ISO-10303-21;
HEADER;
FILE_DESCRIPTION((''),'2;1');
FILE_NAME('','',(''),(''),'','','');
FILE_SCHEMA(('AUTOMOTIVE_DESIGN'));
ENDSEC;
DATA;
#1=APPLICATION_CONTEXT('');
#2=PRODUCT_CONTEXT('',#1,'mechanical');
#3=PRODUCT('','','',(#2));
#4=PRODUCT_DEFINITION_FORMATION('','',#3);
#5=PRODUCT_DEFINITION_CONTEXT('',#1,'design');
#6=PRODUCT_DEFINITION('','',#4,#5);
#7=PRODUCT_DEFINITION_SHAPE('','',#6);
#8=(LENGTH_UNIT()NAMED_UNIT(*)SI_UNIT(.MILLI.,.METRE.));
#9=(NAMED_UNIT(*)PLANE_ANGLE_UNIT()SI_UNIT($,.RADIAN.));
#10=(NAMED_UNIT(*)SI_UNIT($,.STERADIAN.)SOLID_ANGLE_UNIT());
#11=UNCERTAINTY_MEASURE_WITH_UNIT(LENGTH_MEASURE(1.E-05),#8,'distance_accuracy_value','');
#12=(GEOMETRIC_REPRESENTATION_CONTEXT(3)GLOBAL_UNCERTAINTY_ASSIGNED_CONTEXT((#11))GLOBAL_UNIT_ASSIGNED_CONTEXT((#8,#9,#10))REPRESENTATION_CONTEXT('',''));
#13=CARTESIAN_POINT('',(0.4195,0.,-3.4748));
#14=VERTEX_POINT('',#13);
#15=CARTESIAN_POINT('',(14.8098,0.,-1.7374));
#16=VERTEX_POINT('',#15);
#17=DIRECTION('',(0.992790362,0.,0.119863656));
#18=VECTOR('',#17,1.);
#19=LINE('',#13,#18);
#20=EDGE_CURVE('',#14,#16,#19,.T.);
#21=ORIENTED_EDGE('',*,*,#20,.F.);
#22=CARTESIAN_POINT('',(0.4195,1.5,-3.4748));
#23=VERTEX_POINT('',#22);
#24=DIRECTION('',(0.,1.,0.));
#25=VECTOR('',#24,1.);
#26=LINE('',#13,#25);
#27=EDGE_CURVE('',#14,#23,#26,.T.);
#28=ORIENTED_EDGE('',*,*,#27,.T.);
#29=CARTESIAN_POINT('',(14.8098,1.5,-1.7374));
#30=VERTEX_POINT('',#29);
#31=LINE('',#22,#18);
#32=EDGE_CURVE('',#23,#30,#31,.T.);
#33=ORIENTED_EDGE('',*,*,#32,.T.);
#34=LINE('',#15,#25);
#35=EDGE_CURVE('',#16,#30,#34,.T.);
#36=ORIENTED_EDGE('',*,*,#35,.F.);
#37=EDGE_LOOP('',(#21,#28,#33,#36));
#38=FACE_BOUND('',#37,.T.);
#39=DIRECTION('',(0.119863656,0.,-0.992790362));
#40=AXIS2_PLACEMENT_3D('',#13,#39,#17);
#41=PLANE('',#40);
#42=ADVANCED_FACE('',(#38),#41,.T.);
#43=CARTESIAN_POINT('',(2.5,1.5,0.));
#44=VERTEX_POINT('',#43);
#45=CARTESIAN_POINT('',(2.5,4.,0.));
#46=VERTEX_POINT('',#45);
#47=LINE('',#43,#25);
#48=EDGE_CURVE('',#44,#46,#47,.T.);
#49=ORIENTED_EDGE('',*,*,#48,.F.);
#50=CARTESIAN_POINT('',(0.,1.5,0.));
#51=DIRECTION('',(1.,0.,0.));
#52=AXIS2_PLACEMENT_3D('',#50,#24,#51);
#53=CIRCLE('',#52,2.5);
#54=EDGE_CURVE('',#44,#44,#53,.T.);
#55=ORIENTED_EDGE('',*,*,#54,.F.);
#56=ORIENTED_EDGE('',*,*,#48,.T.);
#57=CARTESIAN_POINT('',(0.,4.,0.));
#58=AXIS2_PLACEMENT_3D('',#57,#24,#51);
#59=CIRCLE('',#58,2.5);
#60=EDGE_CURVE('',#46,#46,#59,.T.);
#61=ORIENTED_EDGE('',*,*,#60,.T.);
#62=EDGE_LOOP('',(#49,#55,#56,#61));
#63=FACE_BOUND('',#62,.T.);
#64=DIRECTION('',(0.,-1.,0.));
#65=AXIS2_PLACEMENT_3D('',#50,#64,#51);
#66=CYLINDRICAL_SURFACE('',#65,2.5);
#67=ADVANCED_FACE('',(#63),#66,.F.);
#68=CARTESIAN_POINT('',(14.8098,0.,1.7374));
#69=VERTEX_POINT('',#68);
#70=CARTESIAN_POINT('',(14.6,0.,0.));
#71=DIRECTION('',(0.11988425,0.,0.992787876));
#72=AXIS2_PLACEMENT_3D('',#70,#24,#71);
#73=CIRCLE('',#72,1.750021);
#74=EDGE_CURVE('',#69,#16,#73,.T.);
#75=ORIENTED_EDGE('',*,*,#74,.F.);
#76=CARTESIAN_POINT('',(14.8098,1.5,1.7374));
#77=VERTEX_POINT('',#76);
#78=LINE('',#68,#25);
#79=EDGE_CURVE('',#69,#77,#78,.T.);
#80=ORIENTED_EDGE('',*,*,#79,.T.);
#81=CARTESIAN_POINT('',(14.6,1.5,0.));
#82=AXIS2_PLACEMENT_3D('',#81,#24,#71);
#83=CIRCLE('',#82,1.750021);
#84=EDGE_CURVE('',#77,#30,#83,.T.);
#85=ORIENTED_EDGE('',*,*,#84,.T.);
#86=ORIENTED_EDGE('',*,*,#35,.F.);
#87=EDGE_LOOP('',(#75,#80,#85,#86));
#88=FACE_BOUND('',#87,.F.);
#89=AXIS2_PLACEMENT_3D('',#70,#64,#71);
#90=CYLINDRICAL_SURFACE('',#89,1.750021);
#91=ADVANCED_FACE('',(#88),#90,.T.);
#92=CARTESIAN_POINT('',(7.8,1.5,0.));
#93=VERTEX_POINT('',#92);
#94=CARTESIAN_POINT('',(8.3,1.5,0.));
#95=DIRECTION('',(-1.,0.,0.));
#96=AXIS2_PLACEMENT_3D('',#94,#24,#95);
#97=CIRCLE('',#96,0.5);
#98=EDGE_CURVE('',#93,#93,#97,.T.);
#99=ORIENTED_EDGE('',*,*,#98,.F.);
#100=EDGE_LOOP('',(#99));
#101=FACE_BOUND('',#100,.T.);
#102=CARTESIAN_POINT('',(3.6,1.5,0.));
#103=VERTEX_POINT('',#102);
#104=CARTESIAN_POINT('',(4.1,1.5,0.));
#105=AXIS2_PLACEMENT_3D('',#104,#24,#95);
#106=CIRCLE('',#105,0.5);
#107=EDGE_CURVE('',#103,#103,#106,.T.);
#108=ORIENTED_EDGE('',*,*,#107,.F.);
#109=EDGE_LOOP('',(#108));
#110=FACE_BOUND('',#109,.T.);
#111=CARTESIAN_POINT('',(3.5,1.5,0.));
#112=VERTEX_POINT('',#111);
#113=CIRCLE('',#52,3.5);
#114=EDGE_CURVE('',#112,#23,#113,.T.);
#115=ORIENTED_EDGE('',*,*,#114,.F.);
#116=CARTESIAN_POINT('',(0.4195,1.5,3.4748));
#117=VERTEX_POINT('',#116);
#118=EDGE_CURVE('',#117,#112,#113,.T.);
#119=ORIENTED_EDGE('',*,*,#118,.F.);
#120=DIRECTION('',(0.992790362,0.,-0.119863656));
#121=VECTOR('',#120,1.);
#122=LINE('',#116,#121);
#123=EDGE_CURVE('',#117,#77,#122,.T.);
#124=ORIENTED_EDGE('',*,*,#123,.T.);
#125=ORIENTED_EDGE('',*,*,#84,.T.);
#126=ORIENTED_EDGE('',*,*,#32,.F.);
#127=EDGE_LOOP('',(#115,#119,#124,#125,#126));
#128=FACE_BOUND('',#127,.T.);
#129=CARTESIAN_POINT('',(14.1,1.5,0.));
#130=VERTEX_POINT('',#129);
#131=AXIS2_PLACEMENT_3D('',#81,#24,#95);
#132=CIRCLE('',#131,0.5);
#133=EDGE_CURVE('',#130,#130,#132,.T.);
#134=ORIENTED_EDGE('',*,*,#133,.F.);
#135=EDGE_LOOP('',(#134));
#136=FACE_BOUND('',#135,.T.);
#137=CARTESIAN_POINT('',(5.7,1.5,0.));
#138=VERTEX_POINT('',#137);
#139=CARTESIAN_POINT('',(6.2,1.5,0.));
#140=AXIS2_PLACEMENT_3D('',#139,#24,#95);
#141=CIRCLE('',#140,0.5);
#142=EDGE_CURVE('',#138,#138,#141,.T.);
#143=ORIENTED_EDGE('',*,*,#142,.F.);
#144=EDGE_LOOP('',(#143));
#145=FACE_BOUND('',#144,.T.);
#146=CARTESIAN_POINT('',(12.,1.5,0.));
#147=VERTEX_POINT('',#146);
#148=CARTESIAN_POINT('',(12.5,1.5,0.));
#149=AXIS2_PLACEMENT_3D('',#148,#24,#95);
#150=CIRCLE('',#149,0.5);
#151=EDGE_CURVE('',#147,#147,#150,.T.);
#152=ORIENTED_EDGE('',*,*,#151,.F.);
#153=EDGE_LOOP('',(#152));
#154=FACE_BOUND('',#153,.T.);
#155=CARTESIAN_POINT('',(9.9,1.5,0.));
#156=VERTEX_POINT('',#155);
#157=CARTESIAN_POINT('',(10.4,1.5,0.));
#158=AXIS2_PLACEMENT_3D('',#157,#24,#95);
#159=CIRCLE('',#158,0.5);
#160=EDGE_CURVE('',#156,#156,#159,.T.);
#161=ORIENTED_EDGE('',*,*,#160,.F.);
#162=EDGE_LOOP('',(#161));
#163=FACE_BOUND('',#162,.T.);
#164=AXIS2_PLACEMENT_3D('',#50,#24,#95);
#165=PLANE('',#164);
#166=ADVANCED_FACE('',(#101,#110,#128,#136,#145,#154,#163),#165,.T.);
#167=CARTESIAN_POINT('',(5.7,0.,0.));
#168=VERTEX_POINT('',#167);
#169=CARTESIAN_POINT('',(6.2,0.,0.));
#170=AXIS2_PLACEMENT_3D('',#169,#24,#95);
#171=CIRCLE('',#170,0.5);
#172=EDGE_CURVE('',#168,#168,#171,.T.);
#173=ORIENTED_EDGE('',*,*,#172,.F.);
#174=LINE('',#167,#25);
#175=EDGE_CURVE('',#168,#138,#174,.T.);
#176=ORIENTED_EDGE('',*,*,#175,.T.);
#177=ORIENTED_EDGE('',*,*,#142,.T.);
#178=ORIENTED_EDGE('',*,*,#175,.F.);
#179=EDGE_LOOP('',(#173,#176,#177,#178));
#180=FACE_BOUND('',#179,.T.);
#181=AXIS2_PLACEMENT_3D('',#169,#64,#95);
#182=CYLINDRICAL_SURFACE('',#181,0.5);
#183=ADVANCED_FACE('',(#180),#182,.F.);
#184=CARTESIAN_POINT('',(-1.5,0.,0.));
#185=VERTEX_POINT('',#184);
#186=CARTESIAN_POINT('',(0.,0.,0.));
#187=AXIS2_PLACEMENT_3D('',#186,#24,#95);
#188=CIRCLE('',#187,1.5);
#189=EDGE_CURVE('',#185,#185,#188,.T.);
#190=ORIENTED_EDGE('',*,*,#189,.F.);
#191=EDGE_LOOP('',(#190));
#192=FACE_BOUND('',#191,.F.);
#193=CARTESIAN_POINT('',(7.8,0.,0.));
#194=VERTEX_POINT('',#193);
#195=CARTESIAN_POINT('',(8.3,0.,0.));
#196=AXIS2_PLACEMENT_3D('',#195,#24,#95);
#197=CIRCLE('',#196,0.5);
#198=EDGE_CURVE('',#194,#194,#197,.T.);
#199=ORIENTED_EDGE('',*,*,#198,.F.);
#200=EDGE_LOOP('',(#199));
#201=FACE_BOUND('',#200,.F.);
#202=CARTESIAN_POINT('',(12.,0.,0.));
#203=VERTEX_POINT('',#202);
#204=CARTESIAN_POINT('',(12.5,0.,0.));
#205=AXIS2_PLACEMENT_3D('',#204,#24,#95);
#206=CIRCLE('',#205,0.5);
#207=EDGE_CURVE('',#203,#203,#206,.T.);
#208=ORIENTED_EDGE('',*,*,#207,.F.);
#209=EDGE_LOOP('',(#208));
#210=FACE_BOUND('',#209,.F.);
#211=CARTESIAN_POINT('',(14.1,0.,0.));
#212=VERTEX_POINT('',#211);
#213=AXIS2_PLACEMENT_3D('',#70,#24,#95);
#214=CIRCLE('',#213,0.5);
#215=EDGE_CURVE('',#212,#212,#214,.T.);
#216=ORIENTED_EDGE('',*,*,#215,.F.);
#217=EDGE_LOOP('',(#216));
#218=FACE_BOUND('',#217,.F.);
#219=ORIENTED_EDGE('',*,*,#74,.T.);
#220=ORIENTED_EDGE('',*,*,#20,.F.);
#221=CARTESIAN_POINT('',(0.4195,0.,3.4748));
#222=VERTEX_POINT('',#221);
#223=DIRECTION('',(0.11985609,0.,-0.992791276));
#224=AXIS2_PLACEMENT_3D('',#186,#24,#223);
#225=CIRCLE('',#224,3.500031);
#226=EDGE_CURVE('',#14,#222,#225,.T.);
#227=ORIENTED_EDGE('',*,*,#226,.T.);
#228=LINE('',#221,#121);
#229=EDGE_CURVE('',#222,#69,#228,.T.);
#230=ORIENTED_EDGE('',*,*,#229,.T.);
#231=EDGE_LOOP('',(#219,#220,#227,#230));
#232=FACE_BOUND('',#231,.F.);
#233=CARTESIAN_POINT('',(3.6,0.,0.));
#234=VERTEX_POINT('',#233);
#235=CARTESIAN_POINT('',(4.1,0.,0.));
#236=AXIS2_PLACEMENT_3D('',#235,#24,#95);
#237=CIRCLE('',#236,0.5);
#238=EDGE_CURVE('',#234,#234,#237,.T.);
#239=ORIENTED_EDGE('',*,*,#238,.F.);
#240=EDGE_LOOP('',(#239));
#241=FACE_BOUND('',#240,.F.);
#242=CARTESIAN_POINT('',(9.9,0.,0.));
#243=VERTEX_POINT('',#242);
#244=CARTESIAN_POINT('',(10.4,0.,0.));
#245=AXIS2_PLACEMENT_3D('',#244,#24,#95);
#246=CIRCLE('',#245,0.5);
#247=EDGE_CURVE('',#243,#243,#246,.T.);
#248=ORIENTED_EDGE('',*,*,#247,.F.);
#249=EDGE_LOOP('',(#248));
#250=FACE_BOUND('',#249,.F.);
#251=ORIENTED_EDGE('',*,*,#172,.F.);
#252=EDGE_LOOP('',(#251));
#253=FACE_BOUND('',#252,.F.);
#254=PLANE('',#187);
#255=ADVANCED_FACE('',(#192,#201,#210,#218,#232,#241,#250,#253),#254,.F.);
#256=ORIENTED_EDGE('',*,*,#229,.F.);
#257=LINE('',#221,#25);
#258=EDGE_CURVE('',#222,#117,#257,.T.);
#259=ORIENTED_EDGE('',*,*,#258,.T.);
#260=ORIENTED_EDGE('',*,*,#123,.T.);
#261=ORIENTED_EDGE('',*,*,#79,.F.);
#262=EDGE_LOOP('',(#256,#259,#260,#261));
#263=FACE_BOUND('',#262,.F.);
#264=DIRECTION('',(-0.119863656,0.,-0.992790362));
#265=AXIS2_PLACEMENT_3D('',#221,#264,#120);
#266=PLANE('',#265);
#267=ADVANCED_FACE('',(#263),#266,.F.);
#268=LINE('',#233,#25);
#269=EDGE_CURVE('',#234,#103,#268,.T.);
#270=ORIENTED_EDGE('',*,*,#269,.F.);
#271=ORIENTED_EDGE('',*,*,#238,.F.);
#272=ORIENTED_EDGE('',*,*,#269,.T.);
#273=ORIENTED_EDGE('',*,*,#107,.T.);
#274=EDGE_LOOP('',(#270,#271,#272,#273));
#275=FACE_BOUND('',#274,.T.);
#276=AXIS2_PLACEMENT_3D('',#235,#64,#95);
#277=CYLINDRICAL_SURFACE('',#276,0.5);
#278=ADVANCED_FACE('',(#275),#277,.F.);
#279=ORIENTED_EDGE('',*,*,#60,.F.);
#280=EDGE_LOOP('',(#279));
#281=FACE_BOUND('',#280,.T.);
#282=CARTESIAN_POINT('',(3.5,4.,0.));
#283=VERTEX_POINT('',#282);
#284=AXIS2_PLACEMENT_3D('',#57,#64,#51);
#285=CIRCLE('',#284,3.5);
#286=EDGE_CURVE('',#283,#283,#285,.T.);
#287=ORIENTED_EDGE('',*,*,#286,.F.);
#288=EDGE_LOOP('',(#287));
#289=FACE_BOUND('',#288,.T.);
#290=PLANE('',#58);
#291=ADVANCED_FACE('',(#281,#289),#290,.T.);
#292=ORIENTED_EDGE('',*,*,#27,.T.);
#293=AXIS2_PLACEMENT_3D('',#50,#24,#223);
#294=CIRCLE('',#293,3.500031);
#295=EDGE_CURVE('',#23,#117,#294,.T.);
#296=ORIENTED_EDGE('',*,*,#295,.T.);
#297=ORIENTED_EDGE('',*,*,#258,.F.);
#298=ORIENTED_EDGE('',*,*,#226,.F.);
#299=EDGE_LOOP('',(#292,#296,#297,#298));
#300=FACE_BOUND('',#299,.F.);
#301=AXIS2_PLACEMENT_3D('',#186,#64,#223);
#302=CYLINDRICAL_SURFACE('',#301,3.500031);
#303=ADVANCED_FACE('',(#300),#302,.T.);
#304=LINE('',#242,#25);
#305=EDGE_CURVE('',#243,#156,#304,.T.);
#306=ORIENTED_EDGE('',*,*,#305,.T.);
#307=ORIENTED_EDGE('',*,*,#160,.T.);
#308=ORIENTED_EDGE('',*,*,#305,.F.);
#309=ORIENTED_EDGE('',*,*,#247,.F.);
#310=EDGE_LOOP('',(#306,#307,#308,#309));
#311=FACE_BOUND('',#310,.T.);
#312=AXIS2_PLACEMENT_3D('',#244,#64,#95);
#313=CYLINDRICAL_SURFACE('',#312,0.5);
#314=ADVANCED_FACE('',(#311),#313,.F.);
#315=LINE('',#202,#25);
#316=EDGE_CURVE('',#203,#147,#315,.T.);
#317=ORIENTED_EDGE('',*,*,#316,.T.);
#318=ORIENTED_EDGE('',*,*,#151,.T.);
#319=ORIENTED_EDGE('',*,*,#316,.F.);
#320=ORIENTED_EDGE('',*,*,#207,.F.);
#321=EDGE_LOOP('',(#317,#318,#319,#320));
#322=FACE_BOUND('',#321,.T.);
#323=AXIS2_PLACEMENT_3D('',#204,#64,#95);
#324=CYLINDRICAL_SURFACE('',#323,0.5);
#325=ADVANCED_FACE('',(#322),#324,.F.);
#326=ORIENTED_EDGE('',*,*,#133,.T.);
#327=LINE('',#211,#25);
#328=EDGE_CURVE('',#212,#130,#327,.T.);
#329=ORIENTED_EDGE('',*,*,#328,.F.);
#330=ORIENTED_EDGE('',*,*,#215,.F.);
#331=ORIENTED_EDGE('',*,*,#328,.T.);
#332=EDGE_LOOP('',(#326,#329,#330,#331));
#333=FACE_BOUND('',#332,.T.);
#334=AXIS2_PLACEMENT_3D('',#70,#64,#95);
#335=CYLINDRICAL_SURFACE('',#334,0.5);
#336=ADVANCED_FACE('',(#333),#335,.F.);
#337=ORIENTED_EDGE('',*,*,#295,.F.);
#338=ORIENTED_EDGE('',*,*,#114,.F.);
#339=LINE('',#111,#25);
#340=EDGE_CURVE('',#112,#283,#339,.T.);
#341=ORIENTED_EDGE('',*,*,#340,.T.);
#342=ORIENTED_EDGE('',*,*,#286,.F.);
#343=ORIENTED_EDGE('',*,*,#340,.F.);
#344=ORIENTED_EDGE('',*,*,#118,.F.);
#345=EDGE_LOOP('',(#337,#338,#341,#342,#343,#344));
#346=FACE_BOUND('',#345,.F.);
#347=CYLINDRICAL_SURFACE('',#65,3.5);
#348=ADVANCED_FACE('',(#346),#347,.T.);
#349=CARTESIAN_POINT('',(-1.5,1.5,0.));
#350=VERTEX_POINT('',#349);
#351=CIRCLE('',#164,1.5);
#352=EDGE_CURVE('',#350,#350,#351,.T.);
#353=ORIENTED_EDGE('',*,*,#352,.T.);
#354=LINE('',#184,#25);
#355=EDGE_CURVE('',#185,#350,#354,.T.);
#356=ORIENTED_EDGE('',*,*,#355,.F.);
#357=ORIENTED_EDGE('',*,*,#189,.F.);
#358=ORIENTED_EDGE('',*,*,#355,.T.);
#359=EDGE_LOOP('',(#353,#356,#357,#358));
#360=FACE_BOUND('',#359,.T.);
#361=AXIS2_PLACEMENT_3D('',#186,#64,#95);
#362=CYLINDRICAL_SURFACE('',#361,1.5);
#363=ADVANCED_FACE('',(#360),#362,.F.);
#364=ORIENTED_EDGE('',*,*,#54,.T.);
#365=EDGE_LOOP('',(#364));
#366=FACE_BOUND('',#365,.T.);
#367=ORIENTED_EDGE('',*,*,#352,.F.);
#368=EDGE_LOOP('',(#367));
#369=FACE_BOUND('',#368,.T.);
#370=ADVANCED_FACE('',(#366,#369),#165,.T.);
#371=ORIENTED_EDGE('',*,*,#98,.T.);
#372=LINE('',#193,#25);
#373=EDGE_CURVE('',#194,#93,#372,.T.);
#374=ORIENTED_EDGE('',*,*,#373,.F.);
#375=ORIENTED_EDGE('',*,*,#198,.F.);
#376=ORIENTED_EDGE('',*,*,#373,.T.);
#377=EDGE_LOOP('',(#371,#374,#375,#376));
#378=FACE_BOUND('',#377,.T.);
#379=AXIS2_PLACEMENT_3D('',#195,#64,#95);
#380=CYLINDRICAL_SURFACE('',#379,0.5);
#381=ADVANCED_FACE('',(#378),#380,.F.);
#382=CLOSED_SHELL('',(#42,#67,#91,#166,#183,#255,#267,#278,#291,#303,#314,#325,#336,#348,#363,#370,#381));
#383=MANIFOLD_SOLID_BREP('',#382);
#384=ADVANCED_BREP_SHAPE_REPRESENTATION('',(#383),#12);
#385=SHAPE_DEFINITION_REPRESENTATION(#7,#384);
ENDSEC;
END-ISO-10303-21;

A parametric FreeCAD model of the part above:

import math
import FreeCAD as App
import Part
import Sketcher

V = App.Vector
Q = App.Units.Quantity

doc = App.newDocument("Part")
params = doc.addObject("Spreadsheet::Sheet", "Params")
for row, (alias, value) in enumerate([
    ("sketch1_diameter", "1 mm"),
    ("sketch1_diameter2", "3 mm"),
    ("sketch1_radius", "3.5 mm"),
    ("sketch1_radius2", "1.75 mm"),
    ("pad1_length", "1.5 mm"),
    ("sketch2_diameter", "5 mm"),
    ("sketch2_diameter2", "7 mm"),
    ("pad2_length", "2.5 mm"),
], start=1):
    params.set(f"A{row}", alias)
    params.set(f"B{row}", "=" + value)
    params.setAlias(f"B{row}", alias)

body = doc.addObject("PartDesign::Body", "Body")

sketch1 = body.newObject("Sketcher::SketchObject", "Sketch")
sketch1.AttachmentSupport = (doc.getObject("XZ_Plane"), [""])
sketch1.MapMode = "FlatFace"
sketch1.addGeometry([
    Part.LineSegment(V(14.8, -1.7, 0), V(0.4, -3.5, 0)),
    Part.ArcOfCircle(Part.Circle(V(0, 0, 0), V(0, 0, 1), 3.5), math.radians(83), math.radians(277)),
    Part.LineSegment(V(0.4, 3.5, 0), V(14.8, 1.7, 0)),
    Part.ArcOfCircle(Part.Circle(V(14.6, 0, 0), V(0, 0, 1), 1.8), math.radians(-83), math.radians(83)),
    Part.Circle(V(14.6, 0, 0), V(0, 0, 1), 0.5),
    Part.Circle(V(12.5, 0, 0), V(0, 0, 1), 0.5),
    Part.Circle(V(10.4, 0, 0), V(0, 0, 1), 0.5),
    Part.Circle(V(8.3, 0, 0), V(0, 0, 1), 0.5),
    Part.Circle(V(6.2, 0, 0), V(0, 0, 1), 0.5),
    Part.Circle(V(4.1, 0, 0), V(0, 0, 1), 0.5),
    Part.Circle(V(0, 0, 0), V(0, 0, 1), 1.5),
], False)
sketch1.addConstraint([
    Sketcher.Constraint("Tangent", 0, 2, 1, 2),
    Sketcher.Constraint("Tangent", 1, 1, 2, 1),
    Sketcher.Constraint("Tangent", 2, 2, 3, 2),
    Sketcher.Constraint("Tangent", 3, 1, 0, 1),
    Sketcher.Constraint("Coincident", 1, 3, -1, 1),
    Sketcher.Constraint("Coincident", 10, 3, -1, 1),
    Sketcher.Constraint("Coincident", 4, 3, 3, 3),
    Sketcher.Constraint("Equal", 4, 5),
    Sketcher.Constraint("Equal", 5, 6),
    Sketcher.Constraint("Equal", 6, 7),
    Sketcher.Constraint("Equal", 7, 8),
    Sketcher.Constraint("Equal", 8, 9),
    Sketcher.Constraint("PointOnObject", 3, 3, -1),
    Sketcher.Constraint("PointOnObject", 5, 3, -1),
    Sketcher.Constraint("PointOnObject", 6, 3, -1),
    Sketcher.Constraint("PointOnObject", 7, 3, -1),
    Sketcher.Constraint("PointOnObject", 8, 3, -1),
    Sketcher.Constraint("PointOnObject", 9, 3, -1),
    Sketcher.Constraint("Diameter", 4, Q("1 mm")),
    Sketcher.Constraint("Diameter", 10, Q("3 mm")),
    Sketcher.Constraint("Radius", 1, Q("3.5 mm")),
    Sketcher.Constraint("Radius", 3, Q("1.75 mm")),
    Sketcher.Constraint("DistanceX", -1, 1, 9, 3, Q("4.1 mm")),
    Sketcher.Constraint("DistanceX", 5, 3, 3, 3, Q("2.1 mm")),
    Sketcher.Constraint("DistanceX", 6, 3, 5, 3, Q("2.1 mm")),
    Sketcher.Constraint("DistanceX", 7, 3, 6, 3, Q("2.1 mm")),
    Sketcher.Constraint("DistanceX", 8, 3, 7, 3, Q("2.1 mm")),
    Sketcher.Constraint("DistanceX", 9, 3, 8, 3, Q("2.1 mm")),
])
sketch1.setExpression("Constraints[18]", "Params.sketch1_diameter")
sketch1.setExpression("Constraints[19]", "Params.sketch1_diameter2")
sketch1.setExpression("Constraints[20]", "Params.sketch1_radius")
sketch1.setExpression("Constraints[21]", "Params.sketch1_radius2")
pad1 = body.newObject("PartDesign::Pad", "Pad")
pad1.Profile = sketch1
pad1.setExpression("Length", "Params.pad1_length")
pad1.Reversed = True

sketch2 = body.newObject("Sketcher::SketchObject", "Sketch001")
sketch2.AttachmentSupport = (doc.getObject("XZ_Plane"), [""])
sketch2.MapMode = "FlatFace"
sketch2.AttachmentOffset = App.Placement(V(0, 0, -1.5), App.Rotation())
sketch2.addGeometry([
    Part.Circle(V(0, 0, 0), V(0, 0, 1), 3.5),
    Part.Circle(V(0, 0, 0), V(0, 0, 1), 2.5),
], False)
sketch2.addConstraint([
    Sketcher.Constraint("Coincident", 0, 3, -1, 1),
    Sketcher.Constraint("Coincident", 1, 3, -1, 1),
    Sketcher.Constraint("Diameter", 1, Q("5 mm")),
    Sketcher.Constraint("Diameter", 0, Q("7 mm")),
])
sketch2.setExpression("Constraints[2]", "Params.sketch2_diameter")
sketch2.setExpression("Constraints[3]", "Params.sketch2_diameter2")
pad2 = body.newObject("PartDesign::Pad", "Pad001")
pad2.Profile = sketch2
pad2.setExpression("Length", "Params.pad2_length")
pad2.Reversed = True

doc.recompute()
